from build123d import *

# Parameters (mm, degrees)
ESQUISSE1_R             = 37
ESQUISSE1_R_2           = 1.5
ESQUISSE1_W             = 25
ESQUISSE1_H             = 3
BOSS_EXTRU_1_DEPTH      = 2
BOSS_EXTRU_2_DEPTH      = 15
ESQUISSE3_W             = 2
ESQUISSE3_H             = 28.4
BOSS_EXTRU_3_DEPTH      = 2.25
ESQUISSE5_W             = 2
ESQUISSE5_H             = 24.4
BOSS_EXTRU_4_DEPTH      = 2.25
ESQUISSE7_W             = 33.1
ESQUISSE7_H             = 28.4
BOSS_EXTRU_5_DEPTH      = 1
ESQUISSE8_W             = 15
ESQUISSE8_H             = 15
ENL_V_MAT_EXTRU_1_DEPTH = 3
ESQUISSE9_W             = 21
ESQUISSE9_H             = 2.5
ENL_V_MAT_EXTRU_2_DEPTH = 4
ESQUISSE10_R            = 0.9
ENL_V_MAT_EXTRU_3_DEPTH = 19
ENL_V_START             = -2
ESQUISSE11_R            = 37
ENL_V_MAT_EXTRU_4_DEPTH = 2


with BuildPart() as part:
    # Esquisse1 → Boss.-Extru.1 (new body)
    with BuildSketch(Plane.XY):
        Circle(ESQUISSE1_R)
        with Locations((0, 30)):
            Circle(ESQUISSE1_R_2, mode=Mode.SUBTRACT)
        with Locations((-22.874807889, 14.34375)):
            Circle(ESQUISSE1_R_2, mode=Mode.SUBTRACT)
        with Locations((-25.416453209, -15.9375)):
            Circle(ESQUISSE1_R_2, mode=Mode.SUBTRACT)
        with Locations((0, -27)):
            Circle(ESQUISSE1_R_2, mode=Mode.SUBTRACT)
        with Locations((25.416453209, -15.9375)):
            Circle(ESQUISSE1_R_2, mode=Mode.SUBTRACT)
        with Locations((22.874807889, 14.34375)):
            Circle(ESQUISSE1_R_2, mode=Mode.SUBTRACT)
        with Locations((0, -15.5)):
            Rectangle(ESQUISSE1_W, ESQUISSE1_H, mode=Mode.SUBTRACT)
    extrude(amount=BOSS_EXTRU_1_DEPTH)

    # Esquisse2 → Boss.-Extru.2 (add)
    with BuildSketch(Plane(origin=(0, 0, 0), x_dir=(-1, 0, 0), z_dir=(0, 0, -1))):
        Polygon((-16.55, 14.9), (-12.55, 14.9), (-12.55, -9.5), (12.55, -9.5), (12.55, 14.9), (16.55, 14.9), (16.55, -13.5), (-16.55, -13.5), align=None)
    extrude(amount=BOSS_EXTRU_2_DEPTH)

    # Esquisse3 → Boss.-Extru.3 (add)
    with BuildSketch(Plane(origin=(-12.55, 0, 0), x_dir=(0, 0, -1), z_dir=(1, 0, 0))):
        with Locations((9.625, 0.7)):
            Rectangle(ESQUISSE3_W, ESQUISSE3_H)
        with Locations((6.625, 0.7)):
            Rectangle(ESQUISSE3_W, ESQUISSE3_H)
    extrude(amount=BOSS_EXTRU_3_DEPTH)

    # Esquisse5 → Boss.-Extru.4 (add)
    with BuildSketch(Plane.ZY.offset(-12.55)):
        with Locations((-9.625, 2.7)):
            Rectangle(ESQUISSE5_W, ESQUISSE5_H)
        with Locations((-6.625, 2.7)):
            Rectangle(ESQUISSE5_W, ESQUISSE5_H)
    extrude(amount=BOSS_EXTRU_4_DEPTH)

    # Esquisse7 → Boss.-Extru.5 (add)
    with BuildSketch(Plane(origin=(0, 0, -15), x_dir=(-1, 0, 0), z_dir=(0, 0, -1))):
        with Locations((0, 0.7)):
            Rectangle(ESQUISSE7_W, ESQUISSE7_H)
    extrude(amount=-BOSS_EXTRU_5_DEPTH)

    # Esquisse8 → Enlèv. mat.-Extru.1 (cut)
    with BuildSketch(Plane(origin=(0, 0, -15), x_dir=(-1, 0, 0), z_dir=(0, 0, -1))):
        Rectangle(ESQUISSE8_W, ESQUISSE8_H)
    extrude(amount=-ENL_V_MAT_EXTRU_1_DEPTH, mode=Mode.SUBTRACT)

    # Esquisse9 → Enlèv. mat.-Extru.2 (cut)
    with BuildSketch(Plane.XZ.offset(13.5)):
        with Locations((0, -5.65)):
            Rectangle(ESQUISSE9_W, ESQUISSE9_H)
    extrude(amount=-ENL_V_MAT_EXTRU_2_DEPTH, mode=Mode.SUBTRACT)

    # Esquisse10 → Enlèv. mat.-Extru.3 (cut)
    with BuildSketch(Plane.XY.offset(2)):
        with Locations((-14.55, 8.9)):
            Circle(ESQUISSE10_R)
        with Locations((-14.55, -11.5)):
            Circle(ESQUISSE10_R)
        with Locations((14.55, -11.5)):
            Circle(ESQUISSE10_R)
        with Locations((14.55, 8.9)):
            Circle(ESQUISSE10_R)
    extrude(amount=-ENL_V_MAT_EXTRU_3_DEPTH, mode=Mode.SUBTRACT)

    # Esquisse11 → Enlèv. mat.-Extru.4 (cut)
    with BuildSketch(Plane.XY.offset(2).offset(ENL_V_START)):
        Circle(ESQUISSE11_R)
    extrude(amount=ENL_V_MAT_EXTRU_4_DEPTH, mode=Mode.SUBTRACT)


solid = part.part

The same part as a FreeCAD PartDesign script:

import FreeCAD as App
import Part
import Sketcher

V = App.Vector

doc = App.newDocument("Part")
params = doc.addObject("Spreadsheet::Sheet", "Params")
for row, (alias, value) in enumerate([
    ("sketch1_diameter", "74 mm"),
    ("sketch1_diameter2", "3 mm"),
    ("sketch1_width", "25 mm"),
    ("sketch1_height", "3 mm"),
    ("pad1_length", "2 mm"),
    ("sketch2_width", "4 mm"),
    ("sketch2_width2", "33.1 mm"),
    ("sketch2_height", "28.4 mm"),
    ("sketch2_height2", "24.4 mm"),
    ("pad2_length", "15 mm"),
    ("sketch3_height", "2 mm"),
    ("sketch3_width", "28.4 mm"),
    ("pad3_length", "2.25 mm"),
    ("sketch4_height", "2 mm"),
    ("sketch4_width", "24.4 mm"),
    ("pad4_length", "2.25 mm"),
    ("sketch5_width", "33.1 mm"),
    ("sketch5_height", "28.4 mm"),
    ("pad5_length", "1 mm"),
    ("sketch6_width", "15 mm"),
    ("pocket1_length", "3 mm"),
    ("sketch7_width", "21 mm"),
    ("sketch7_height", "2.5 mm"),
    ("pocket2_length", "4 mm"),
    ("sketch8_diameter", "1.8 mm"),
    ("pocket3_length", "19 mm"),
    ("sketch9_diameter", "74 mm"),
    ("pocket4_length", "2 mm"),
], start=1):
    params.set(f"A{row}", alias)
    params.set(f"B{row}", "=" + value)
    params.setAlias(f"B{row}", alias)

body = doc.addObject("PartDesign::Body", "Body")

# Sketch on XY plane
sketch1 = body.newObject("Sketcher::SketchObject", "Sketch")
sketch1.AttachmentSupport = (doc.getObject("XY_Plane"), [""])
sketch1.MapMode = "FlatFace"
sketch1.addGeometry([
    Part.Circle(V(0, 0, 0), V(0, 0, 1), 37),  # 0
    Part.Circle(V(-25.4, -15.9, 0), V(0, 0, 1), 1.5),  # 1
    Part.LineSegment(V(12.5, -17, 0), V(-12.5, -17, 0)),  # 2
    Part.LineSegment(V(-12.5, -17, 0), V(-12.5, -14, 0)),  # 3
    Part.LineSegment(V(-12.5, -14, 0), V(12.5, -14, 0)),  # 4
    Part.LineSegment(V(12.5, -14, 0), V(12.5, -17, 0)),  # 5
    Part.Circle(V(0, -27, 0), V(0, 0, 1), 1.5),  # 6
    Part.Circle(V(25.4, -15.9, 0), V(0, 0, 1), 1.5),  # 7
    Part.Circle(V(-22.9, 14.3, 0), V(0, 0, 1), 1.5),  # 8
    Part.Circle(V(22.9, 14.3, 0), V(0, 0, 1), 1.5),  # 9
    Part.Circle(V(0, 30, 0), V(0, 0, 1), 1.5),  # 10
], False)
sketch1.addConstraint([
    Sketcher.Constraint("Coincident", 2, 2, 3, 1),
    Sketcher.Constraint("Coincident", 3, 2, 4, 1),
    Sketcher.Constraint("Coincident", 4, 2, 5, 1),
    Sketcher.Constraint("Coincident", 5, 2, 2, 1),
    Sketcher.Constraint("Horizontal", 2),
    Sketcher.Constraint("Vertical", 3),
    Sketcher.Constraint("Horizontal", 4),
    Sketcher.Constraint("Vertical", 5),
    Sketcher.Constraint("Coincident", 0, 3, -1, 1),
    Sketcher.Constraint("Equal", 1, 6),
    Sketcher.Constraint("Equal", 6, 7),
    Sketcher.Constraint("Equal", 7, 8),
    Sketcher.Constraint("Equal", 8, 9),
    Sketcher.Constraint("Equal", 9, 10),
    Sketcher.Constraint("Symmetric", 1, 3, 7, 3, -2),
    Sketcher.Constraint("Symmetric", 8, 3, 9, 3, -2),
    Sketcher.Constraint("PointOnObject", 6, 3, -2),
    Sketcher.Constraint("PointOnObject", 10, 3, -2),
    Sketcher.Constraint("Diameter", 0, 74.0),
    Sketcher.Constraint("Diameter", 1, 3.0),
    Sketcher.Constraint("DistanceX", 2, 2, 2, 1, 25.0),
    Sketcher.Constraint("DistanceY", 3, 1, 3, 2, 3.0),
    Sketcher.Constraint("DistanceY", 6, 3, -1, 1, 27.0),
    Sketcher.Constraint("DistanceY", -1, 1, 10, 3, 30.0),
    Sketcher.Constraint("DistanceY", 2, 2, -1, 1, 17.0),
    Sketcher.Constraint("DistanceX", 2, 2, -1, 1, 12.5),
    Sketcher.Constraint("DistanceY", 1, 3, -1, 1, 15.9375),
    Sketcher.Constraint("DistanceY", -1, 1, 8, 3, 14.34375),
    Sketcher.Constraint("DistanceX", 8, 3, 7, 3, 48.291261),
    Sketcher.Constraint("DistanceX", 1, 3, -1, 1, 25.416453),
])
sketch1.setExpression("Constraints[18]", "Params.sketch1_diameter")
sketch1.setExpression("Constraints[19]", "Params.sketch1_diameter2")
sketch1.setExpression("Constraints[20]", "Params.sketch1_width")
sketch1.setExpression("Constraints[21]", "Params.sketch1_height")
pad1 = body.newObject("PartDesign::Pad", "Pad")
pad1.Profile = sketch1
pad1.setExpression("Length", "Params.pad1_length")

# Sketch on XY plane
sketch2 = body.newObject("Sketcher::SketchObject", "Sketch001")
sketch2.AttachmentSupport = (doc.getObject("XY_Plane"), [""])
sketch2.MapMode = "FlatFace"
sketch2.addGeometry([
    Part.LineSegment(V(12.6, 14.9, 0), V(16.6, 14.9, 0)),  # 0
    Part.LineSegment(V(16.6, 14.9, 0), V(16.6, -13.5, 0)),  # 1
    Part.LineSegment(V(16.6, -13.5, 0), V(-16.6, -13.5, 0)),  # 2
    Part.LineSegment(V(-16.6, -13.5, 0), V(-16.6, 14.9, 0)),  # 3
    Part.LineSegment(V(-16.6, 14.9, 0), V(-12.6, 14.9, 0)),  # 4
    Part.LineSegment(V(-12.6, 14.9, 0), V(-12.6, -9.5, 0)),  # 5
    Part.LineSegment(V(-12.6, -9.5, 0), V(12.6, -9.5, 0)),  # 6
    Part.LineSegment(V(12.6, -9.5, 0), V(12.6, 14.9, 0)),  # 7
], False)
sketch2.addConstraint([
    Sketcher.Constraint("Coincident", 0, 2, 1, 1),
    Sketcher.Constraint("Coincident", 1, 2, 2, 1),
    Sketcher.Constraint("Coincident", 2, 2, 3, 1),
    Sketcher.Constraint("Coincident", 3, 2, 4, 1),
    Sketcher.Constraint("Coincident", 4, 2, 5, 1),
    Sketcher.Constraint("Coincident", 5, 2, 6, 1),
    Sketcher.Constraint("Coincident", 6, 2, 7, 1),
    Sketcher.Constraint("Coincident", 7, 2, 0, 1),
    Sketcher.Constraint("Horizontal", 0),
    Sketcher.Constraint("Vertical", 1),
    Sketcher.Constraint("Horizontal", 2),
    Sketcher.Constraint("Vertical", 3),
    Sketcher.Constraint("Horizontal", 4),
    Sketcher.Constraint("Vertical", 5),
    Sketcher.Constraint("Horizontal", 6),
    Sketcher.Constraint("Vertical", 7),
    Sketcher.Constraint("Symmetric", 0, 2, 3, 2, -2),
    Sketcher.Constraint("Equal", 0, 4),
    Sketcher.Constraint("DistanceX", 0, 1, 0, 2, 4.0),
    Sketcher.Constraint("DistanceX", 2, 2, 2, 1, 33.1),
    Sketcher.Constraint("DistanceY", 1, 2, 1, 1, 28.4),
    Sketcher.Constraint("DistanceY", 5, 2, 5, 1, 24.4),
    Sketcher.Constraint("DistanceY", -1, 1, 0, 2, 14.9),
])
sketch2.setExpression("Constraints[18]", "Params.sketch2_width")
sketch2.setExpression("Constraints[19]", "Params.sketch2_width2")
sketch2.setExpression("Constraints[20]", "Params.sketch2_height")
sketch2.setExpression("Constraints[21]", "Params.sketch2_height2")
pad2 = body.newObject("PartDesign::Pad", "Pad001")
pad2.Profile = sketch2
pad2.setExpression("Length", "Params.pad2_length")
pad2.Reversed = True

# Sketch on YZ plane
sketch3 = body.newObject("Sketcher::SketchObject", "Sketch002")
sketch3.AttachmentSupport = (doc.getObject("YZ_Plane"), [""])
sketch3.MapMode = "FlatFace"
sketch3.AttachmentOffset = App.Placement(V(0, 0, -12.55), App.Rotation())
sketch3.addGeometry([
    Part.LineSegment(V(14.9, -8.6, 0), V(-13.5, -8.6, 0)),  # 0
    Part.LineSegment(V(-13.5, -8.6, 0), V(-13.5, -10.6, 0)),  # 1
    Part.LineSegment(V(-13.5, -10.6, 0), V(14.9, -10.6, 0)),  # 2
    Part.LineSegment(V(14.9, -10.6, 0), V(14.9, -8.6, 0)),  # 3
    Part.LineSegment(V(14.9, -5.6, 0), V(-13.5, -5.6, 0)),  # 4
    Part.LineSegment(V(-13.5, -5.6, 0), V(-13.5, -7.6, 0)),  # 5
    Part.LineSegment(V(-13.5, -7.6, 0), V(14.9, -7.6, 0)),  # 6
    Part.LineSegment(V(14.9, -7.6, 0), V(14.9, -5.6, 0)),  # 7
], False)
sketch3.addConstraint([
    Sketcher.Constraint("Coincident", 0, 2, 1, 1),
    Sketcher.Constraint("Coincident", 1, 2, 2, 1),
    Sketcher.Constraint("Coincident", 2, 2, 3, 1),
    Sketcher.Constraint("Coincident", 3, 2, 0, 1),
    Sketcher.Constraint("Coincident", 4, 2, 5, 1),
    Sketcher.Constraint("Coincident", 5, 2, 6, 1),
    Sketcher.Constraint("Coincident", 6, 2, 7, 1),
    Sketcher.Constraint("Coincident", 7, 2, 4, 1),
    Sketcher.Constraint("Horizontal", 0),
    Sketcher.Constraint("Vertical", 1),
    Sketcher.Constraint("Horizontal", 2),
    Sketcher.Constraint("Vertical", 3),
    Sketcher.Constraint("Horizontal", 4),
    Sketcher.Constraint("Vertical", 5),
    Sketcher.Constraint("Horizontal", 6),
    Sketcher.Constraint("Vertical", 7),
    Sketcher.Constraint("Vertical", 1, 2, 4, 2),
    Sketcher.Constraint("Vertical", 3, 2, 6, 2),
    Sketcher.Constraint("Equal", 3, 5),
    Sketcher.Constraint("DistanceY", 1, 2, 1, 1, 2.0),
    Sketcher.Constraint("DistanceX", 0, 2, 0, 1, 28.4),
    Sketcher.Constraint("DistanceY", 0, 2, 4, 2, 3.0),
    Sketcher.Constraint("DistanceX", 0, 2, -1, 1, 13.5),
    Sketcher.Constraint("DistanceY", 0, 2, -1, 1, 8.625),
])
sketch3.setExpression("Constraints[19]", "Params.sketch3_height")
sketch3.setExpression("Constraints[20]", "Params.sketch3_width")
pad3 = body.newObject("PartDesign::Pad", "Pad002")
pad3.Profile = sketch3
pad3.setExpression("Length", "Params.pad3_length")

# Sketch on YZ plane
sketch4 = body.newObject("Sketcher::SketchObject", "Sketch003")
sketch4.AttachmentSupport = (doc.getObject("YZ_Plane"), [""])
sketch4.MapMode = "FlatFace"
sketch4.AttachmentOffset = App.Placement(V(0, 0, 12.55), App.Rotation())
sketch4.addGeometry([
    Part.LineSegment(V(14.9, -10.6, 0), V(-9.5, -10.6, 0)),  # 0
    Part.LineSegment(V(-9.5, -10.6, 0), V(-9.5, -8.6, 0)),  # 1
    Part.LineSegment(V(-9.5, -8.6, 0), V(14.9, -8.6, 0)),  # 2
    Part.LineSegment(V(14.9, -8.6, 0), V(14.9, -10.6, 0)),  # 3
    Part.LineSegment(V(14.9, -7.6, 0), V(-9.5, -7.6, 0)),  # 4
    Part.LineSegment(V(-9.5, -7.6, 0), V(-9.5, -5.6, 0)),  # 5
    Part.LineSegment(V(-9.5, -5.6, 0), V(14.9, -5.6, 0)),  # 6
    Part.LineSegment(V(14.9, -5.6, 0), V(14.9, -7.6, 0)),  # 7
], False)
sketch4.addConstraint([
    Sketcher.Constraint("Coincident", 0, 2, 1, 1),
    Sketcher.Constraint("Coincident", 1, 2, 2, 1),
    Sketcher.Constraint("Coincident", 2, 2, 3, 1),
    Sketcher.Constraint("Coincident", 3, 2, 0, 1),
    Sketcher.Constraint("Coincident", 4, 2, 5, 1),
    Sketcher.Constraint("Coincident", 5, 2, 6, 1),
    Sketcher.Constraint("Coincident", 6, 2, 7, 1),
    Sketcher.Constraint("Coincident", 7, 2, 4, 1),
    Sketcher.Constraint("Horizontal", 0),
    Sketcher.Constraint("Vertical", 1),
    Sketcher.Constraint("Horizontal", 2),
    Sketcher.Constraint("Vertical", 3),
    Sketcher.Constraint("Horizontal", 4),
    Sketcher.Constraint("Vertical", 5),
    Sketcher.Constraint("Horizontal", 6),
    Sketcher.Constraint("Vertical", 7),
    Sketcher.Constraint("Vertical", 1, 2, 4, 2),
    Sketcher.Constraint("Vertical", 3, 2, 6, 2),
    Sketcher.Constraint("Equal", 3, 5),
    Sketcher.Constraint("DistanceY", 1, 1, 1, 2, 2.0),
    Sketcher.Constraint("DistanceX", 0, 2, 0, 1, 24.4),
    Sketcher.Constraint("DistanceY", 1, 2, 4, 2, 1.0),
    Sketcher.Constraint("DistanceX", 0, 2, -1, 1, 9.5),
    Sketcher.Constraint("DistanceY", 0, 2, -1, 1, 10.625),
])
sketch4.setExpression("Constraints[19]", "Params.sketch4_height")
sketch4.setExpression("Constraints[20]", "Params.sketch4_width")
pad4 = body.newObject("PartDesign::Pad", "Pad003")
pad4.Profile = sketch4
pad4.setExpression("Length", "Params.pad4_length")
pad4.Reversed = True

# Sketch on XY plane
sketch5 = body.newObject("Sketcher::SketchObject", "Sketch004")
sketch5.AttachmentSupport = (doc.getObject("XY_Plane"), [""])
sketch5.MapMode = "FlatFace"
sketch5.AttachmentOffset = App.Placement(V(0, 0, -15), App.Rotation())
sketch5.addGeometry([
    Part.LineSegment(V(17, 15, 0), V(17, -14, 0)),
    Part.LineSegment(V(17, -14, 0), V(-17, -14, 0)),
    Part.LineSegment(V(-17, -14, 0), V(-17, 15, 0)),
    Part.LineSegment(V(-17, 15, 0), V(17, 15, 0)),
], False)
sketch5.addConstraint([
    Sketcher.Constraint("Coincident", 0, 2, 1, 1),
    Sketcher.Constraint("Coincident", 1, 2, 2, 1),
    Sketcher.Constraint("Coincident", 2, 2, 3, 1),
    Sketcher.Constraint("Coincident", 3, 2, 0, 1),
    Sketcher.Constraint("Vertical", 0),
    Sketcher.Constraint("Horizontal", 1),
    Sketcher.Constraint("Vertical", 2),
    Sketcher.Constraint("Horizontal", 3),
    Sketcher.Constraint("DistanceX", 1, 2, 1, 1, 33.1),
    Sketcher.Constraint("DistanceY", 0, 2, 0, 1, 28.4),
    Sketcher.Constraint("DistanceY", 0, 2, -1, 1, 13.5),
    Sketcher.Constraint("DistanceX", -1, 1, 0, 2, 16.55),
])
sketch5.setExpression("Constraints[8]", "Params.sketch5_width")
sketch5.setExpression("Constraints[9]", "Params.sketch5_height")
pad5 = body.newObject("PartDesign::Pad", "Pad004")
pad5.Profile = sketch5
pad5.setExpression("Length", "Params.pad5_length")

# Sketch on XY plane
sketch6 = body.newObject("Sketcher::SketchObject", "Sketch005")
sketch6.AttachmentSupport = (doc.getObject("XY_Plane"), [""])
sketch6.MapMode = "FlatFace"
sketch6.AttachmentOffset = App.Placement(V(0, 0, -15), App.Rotation())
sketch6.addGeometry([
    Part.LineSegment(V(8, 8, 0), V(8, -8, 0)),
    Part.LineSegment(V(8, -8, 0), V(-8, -8, 0)),
    Part.LineSegment(V(-8, -8, 0), V(-8, 8, 0)),
    Part.LineSegment(V(-8, 8, 0), V(8, 8, 0)),
], False)
sketch6.addConstraint([
    Sketcher.Constraint("Coincident", 0, 2, 1, 1),
    Sketcher.Constraint("Coincident", 1, 2, 2, 1),
    Sketcher.Constraint("Coincident", 2, 2, 3, 1),
    Sketcher.Constraint("Coincident", 3, 2, 0, 1),
    Sketcher.Constraint("Vertical", 0),
    Sketcher.Constraint("Horizontal", 1),
    Sketcher.Constraint("Vertical", 2),
    Sketcher.Constraint("Horizontal", 3),
    Sketcher.Constraint("Symmetric", 0, 2, 2, 2, -1, 1),
    Sketcher.Constraint("Equal", 3, 0),
    Sketcher.Constraint("DistanceX", 1, 2, 1, 1, 15.0),
])
sketch6.setExpression("Constraints[10]", "Params.sketch6_width")
pocket1 = body.newObject("PartDesign::Pocket", "Pocket")
pocket1.Profile = sketch6
pocket1.setExpression("Length", "Params.pocket1_length")
pocket1.Reversed = True

# Sketch on XZ plane
sketch7 = body.newObject("Sketcher::SketchObject", "Sketch006")
sketch7.AttachmentSupport = (doc.getObject("XZ_Plane"), [""])
sketch7.MapMode = "FlatFace"
sketch7.AttachmentOffset = App.Placement(V(0, 0, 13.5), App.Rotation())
sketch7.addGeometry([
    Part.LineSegment(V(-10.5, -4.4, 0), V(-10.5, -6.9, 0)),
    Part.LineSegment(V(-10.5, -6.9, 0), V(10.5, -6.9, 0)),
    Part.LineSegment(V(10.5, -6.9, 0), V(10.5, -4.4, 0)),
    Part.LineSegment(V(10.5, -4.4, 0), V(-10.5, -4.4, 0)),
], False)
sketch7.addConstraint([
    Sketcher.Constraint("Coincident", 0, 2, 1, 1),
    Sketcher.Constraint("Coincident", 1, 2, 2, 1),
    Sketcher.Constraint("Coincident", 2, 2, 3, 1),
    Sketcher.Constraint("Coincident", 3, 2, 0, 1),
    Sketcher.Constraint("Vertical", 0),
    Sketcher.Constraint("Horizontal", 1),
    Sketcher.Constraint("Vertical", 2),
    Sketcher.Constraint("Horizontal", 3),
    Sketcher.Constraint("DistanceX", 1, 1, 1, 2, 21.0),
    Sketcher.Constraint("DistanceY", 0, 2, 0, 1, 2.5),
    Sketcher.Constraint("DistanceX", 0, 2, -1, 1, 10.5),
    Sketcher.Constraint("DistanceY", 0, 2, -1, 1, 6.9),
])
sketch7.setExpression("Constraints[8]", "Params.sketch7_width")
sketch7.setExpression("Constraints[9]", "Params.sketch7_height")
pocket2 = body.newObject("PartDesign::Pocket", "Pocket001")
pocket2.Profile = sketch7
pocket2.setExpression("Length", "Params.pocket2_length")

# Sketch on XY plane
sketch8 = body.newObject("Sketcher::SketchObject", "Sketch007")
sketch8.AttachmentSupport = (doc.getObject("XY_Plane"), [""])
sketch8.MapMode = "FlatFace"
sketch8.AttachmentOffset = App.Placement(V(0, 0, 2), App.Rotation())
sketch8.addGeometry([
    Part.Circle(V(-14.6, 8.9, 0), V(0, 0, 1), 0.9),
    Part.Circle(V(-14.6, -11.5, 0), V(0, 0, 1), 0.9),
    Part.Circle(V(14.6, -11.5, 0), V(0, 0, 1), 0.9),
    Part.Circle(V(14.6, 8.9, 0), V(0, 0, 1), 0.9),
], False)
sketch8.addConstraint([
    Sketcher.Constraint("Equal", 0, 1),
    Sketcher.Constraint("Equal", 1, 2),
    Sketcher.Constraint("Equal", 2, 3),
    Sketcher.Constraint("Symmetric", 1, 3, 2, 3, -2),
    Sketcher.Constraint("Symmetric", 0, 3, 3, 3, -2),
    Sketcher.Constraint("Vertical", 0, 3, 1, 3),
    Sketcher.Constraint("Diameter", 0, 1.8),
    Sketcher.Constraint("DistanceY", -1, 1, 0, 3, 8.9),
    Sketcher.Constraint("DistanceY", 1, 3, -1, 1, 11.5),
    Sketcher.Constraint("DistanceX", 1, 3, 2, 3, 29.1),
])
sketch8.setExpression("Constraints[6]", "Params.sketch8_diameter")
pocket3 = body.newObject("PartDesign::Pocket", "Pocket002")
pocket3.Profile = sketch8
pocket3.setExpression("Length", "Params.pocket3_length")

# Sketch on XY plane
sketch9 = body.newObject("Sketcher::SketchObject", "Sketch008")
sketch9.AttachmentSupport = (doc.getObject("XY_Plane"), [""])
sketch9.MapMode = "FlatFace"
sketch9.addGeometry(Part.Circle(V(0, 0, 0), V(0, 0, 1), 37), False)
sketch9.addConstraint([
    Sketcher.Constraint("Coincident", 0, 3, -1, 1),
    Sketcher.Constraint("Diameter", 0, 74.0),
])
sketch9.setExpression("Constraints[1]", "Params.sketch9_diameter")
pocket4 = body.newObject("PartDesign::Pocket", "Pocket003")
pocket4.Profile = sketch9
pocket4.setExpression("Length", "Params.pocket4_length")
pocket4.Reversed = True

doc.recompute()
